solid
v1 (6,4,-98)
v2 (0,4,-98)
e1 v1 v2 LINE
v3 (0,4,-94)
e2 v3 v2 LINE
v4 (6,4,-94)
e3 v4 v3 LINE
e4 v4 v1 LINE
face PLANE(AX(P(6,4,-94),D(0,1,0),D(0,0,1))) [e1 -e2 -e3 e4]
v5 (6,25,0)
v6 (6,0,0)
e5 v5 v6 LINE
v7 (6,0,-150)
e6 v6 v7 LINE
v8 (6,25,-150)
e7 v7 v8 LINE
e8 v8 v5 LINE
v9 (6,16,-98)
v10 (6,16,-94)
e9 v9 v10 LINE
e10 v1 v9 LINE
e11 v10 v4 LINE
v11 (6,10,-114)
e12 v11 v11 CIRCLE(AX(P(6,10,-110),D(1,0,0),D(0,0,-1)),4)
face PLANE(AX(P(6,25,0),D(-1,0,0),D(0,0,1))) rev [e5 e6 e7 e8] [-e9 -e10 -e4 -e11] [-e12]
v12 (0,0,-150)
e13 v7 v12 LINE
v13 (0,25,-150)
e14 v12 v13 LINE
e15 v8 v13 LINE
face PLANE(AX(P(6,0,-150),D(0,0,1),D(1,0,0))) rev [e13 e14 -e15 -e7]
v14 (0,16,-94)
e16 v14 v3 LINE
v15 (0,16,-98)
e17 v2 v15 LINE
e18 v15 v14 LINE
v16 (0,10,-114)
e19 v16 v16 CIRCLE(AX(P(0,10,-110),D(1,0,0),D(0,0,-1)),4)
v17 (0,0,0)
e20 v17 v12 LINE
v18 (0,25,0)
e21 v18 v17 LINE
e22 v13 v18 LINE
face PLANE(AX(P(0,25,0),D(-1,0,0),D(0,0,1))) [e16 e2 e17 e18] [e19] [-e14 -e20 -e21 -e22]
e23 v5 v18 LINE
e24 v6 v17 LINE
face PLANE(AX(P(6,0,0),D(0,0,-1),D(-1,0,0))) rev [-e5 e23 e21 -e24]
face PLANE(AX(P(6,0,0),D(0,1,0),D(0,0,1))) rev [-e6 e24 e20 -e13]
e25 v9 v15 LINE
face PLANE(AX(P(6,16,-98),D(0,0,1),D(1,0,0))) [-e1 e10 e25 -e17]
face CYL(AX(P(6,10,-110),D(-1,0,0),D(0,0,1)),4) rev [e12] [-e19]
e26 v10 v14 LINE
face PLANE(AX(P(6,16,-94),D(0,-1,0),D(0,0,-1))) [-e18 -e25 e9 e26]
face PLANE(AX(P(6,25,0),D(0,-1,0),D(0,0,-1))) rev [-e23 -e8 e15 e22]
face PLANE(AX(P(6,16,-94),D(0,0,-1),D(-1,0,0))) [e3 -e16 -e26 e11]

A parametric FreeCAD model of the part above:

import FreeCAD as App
import Part
import Sketcher
from FreeCAD import Vector
Q = App.Units.Quantity

doc = App.newDocument("Part")
params = doc.addObject("Spreadsheet::Sheet", "Params")
for row, (alias, value) in enumerate([
    ("sketch1_diameter", "8 mm"),
    ("sketch1_width", "25 mm"),
    ("sketch1_width2", "12 mm"),
    ("sketch1_height", "150 mm"),
    ("sketch1_height2", "4 mm"),
    ("pad1_length", "6 mm"),
], start=1):
    params.set(f"A{row}", alias)
    params.set(f"B{row}", "=" + value)
    params.setAlias(f"B{row}", alias)

body = doc.addObject("PartDesign::Body", "Body")

# Sketch on YZ plane
sketch1 = doc.addObject("Sketcher::SketchObject", "Sketch")
body.addObject(sketch1)
sketch1.AttachmentSupport = (doc.YZ_Plane, [""])
sketch1.MapMode = "FlatFace"
sketch1.addGeometry([
    Part.LineSegment(Vector(25, 0, 0), Vector(0, 0, 0)),  # 0
    Part.LineSegment(Vector(0, 0, 0), Vector(0, -150, 0)),  # 1
    Part.LineSegment(Vector(0, -150, 0), Vector(25, -150, 0)),  # 2
    Part.LineSegment(Vector(25, -150, 0), Vector(25, 0, 0)),  # 3
    Part.LineSegment(Vector(4, -98, 0), Vector(4, -94, 0)),  # 4
    Part.LineSegment(Vector(4, -94, 0), Vector(16, -94, 0)),  # 5
    Part.LineSegment(Vector(16, -94, 0), Vector(16, -98, 0)),  # 6
    Part.LineSegment(Vector(16, -98, 0), Vector(4, -98, 0)),  # 7
    Part.Circle(Vector(10, -110, 0), Vector(0, 0, 1), 4),  # 8
], False)
sketch1.addConstraint([
    Sketcher.Constraint("Coincident", 0, 2, 1, 1),
    Sketcher.Constraint("Coincident", 1, 2, 2, 1),
    Sketcher.Constraint("Coincident", 2, 2, 3, 1),
    Sketcher.Constraint("Coincident", 3, 2, 0, 1),
    Sketcher.Constraint("Coincident", 4, 2, 5, 1),
    Sketcher.Constraint("Coincident", 5, 2, 6, 1),
    Sketcher.Constraint("Coincident", 6, 2, 7, 1),
    Sketcher.Constraint("Coincident", 7, 2, 4, 1),
    Sketcher.Constraint("Horizontal", 0),
    Sketcher.Constraint("Vertical", 1),
    Sketcher.Constraint("Horizontal", 2),
    Sketcher.Constraint("Vertical", 3),
    Sketcher.Constraint("Vertical", 4),
    Sketcher.Constraint("Horizontal", 5),
    Sketcher.Constraint("Vertical", 6),
    Sketcher.Constraint("Horizontal", 7),
    Sketcher.Constraint("Coincident", 0, 2, -1, 1),
    Sketcher.Constraint("Diameter", 8, Q("8 mm")),
    Sketcher.Constraint("DistanceX", 0, 2, 0, 1, Q("25 mm")),
    Sketcher.Constraint("DistanceX", 5, 1, 5, 2, Q("12 mm")),
    Sketcher.Constraint("DistanceY", 1, 2, 1, 1, Q("150 mm")),
    Sketcher.Constraint("DistanceY", 4, 1, 4, 2, Q("4 mm")),
    Sketcher.Constraint("DistanceX", -1, 1, 8, 3, Q("10 mm")),
    Sketcher.Constraint("DistanceY", 8, 3, -1, 1, Q("110 mm")),
    Sketcher.Constraint("DistanceX", -1, 1, 4, 2, Q("4 mm")),
    Sketcher.Constraint("DistanceY", 4, 2, -1, 1, Q("94 mm")),
])
sketch1.setExpression("Constraints[17]", "Params.sketch1_diameter")
sketch1.setExpression("Constraints[18]", "Params.sketch1_width")
sketch1.setExpression("Constraints[19]", "Params.sketch1_width2")
sketch1.setExpression("Constraints[20]", "Params.sketch1_height")
sketch1.setExpression("Constraints[21]", "Params.sketch1_height2")
pad1 = doc.addObject("PartDesign::Pad", "Pad")
body.addObject(pad1)
pad1.Profile = sketch1
pad1.setExpression("Length", "Params.pad1_length")

doc.recompute()
